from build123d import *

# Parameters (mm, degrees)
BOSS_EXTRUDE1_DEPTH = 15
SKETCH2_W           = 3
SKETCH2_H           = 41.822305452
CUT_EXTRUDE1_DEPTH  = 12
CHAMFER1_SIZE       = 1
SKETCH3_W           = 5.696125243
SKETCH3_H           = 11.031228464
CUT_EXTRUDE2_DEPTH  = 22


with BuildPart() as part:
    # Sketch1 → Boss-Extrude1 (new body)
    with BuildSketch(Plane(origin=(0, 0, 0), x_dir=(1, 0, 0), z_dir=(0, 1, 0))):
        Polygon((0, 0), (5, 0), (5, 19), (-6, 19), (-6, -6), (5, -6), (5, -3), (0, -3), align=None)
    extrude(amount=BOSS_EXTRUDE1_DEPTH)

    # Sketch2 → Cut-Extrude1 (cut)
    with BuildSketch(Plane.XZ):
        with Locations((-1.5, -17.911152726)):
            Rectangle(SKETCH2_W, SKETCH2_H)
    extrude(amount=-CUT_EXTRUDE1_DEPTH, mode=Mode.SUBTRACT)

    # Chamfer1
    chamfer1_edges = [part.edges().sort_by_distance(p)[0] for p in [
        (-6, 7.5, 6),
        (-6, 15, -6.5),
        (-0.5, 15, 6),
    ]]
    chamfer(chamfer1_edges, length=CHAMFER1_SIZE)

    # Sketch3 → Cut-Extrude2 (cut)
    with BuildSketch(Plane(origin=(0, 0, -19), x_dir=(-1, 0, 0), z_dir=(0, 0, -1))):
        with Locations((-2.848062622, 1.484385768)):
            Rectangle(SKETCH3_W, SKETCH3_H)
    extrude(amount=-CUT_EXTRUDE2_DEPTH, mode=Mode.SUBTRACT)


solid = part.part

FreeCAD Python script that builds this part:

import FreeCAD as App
import Part
import Sketcher
from FreeCAD import Vector


def edges_at(feature, points):
    """Names of the edges that pass closest to the given points."""
    edges = feature.Shape.Edges
    near = lambda p: min(range(len(edges)), key=lambda i: edges[i].distToShape(Part.Vertex(*p))[0])
    return sorted({f"Edge{near(p) + 1}" for p in points})

doc = App.newDocument("Part")
body = doc.addObject("PartDesign::Body", "Body")

# Sketch on XZ plane
sketch1 = doc.addObject("Sketcher::SketchObject", "Sketch")
body.addObject(sketch1)
sketch1.AttachmentSupport = (doc.XZ_Plane, [""])
sketch1.MapMode = "FlatFace"
sketch1.addGeometry([
    Part.LineSegment(Vector(0, 0, 0), Vector(5, 0, 0)),  # 0
    Part.LineSegment(Vector(5, 0, 0), Vector(5, -19, 0)),  # 1
    Part.LineSegment(Vector(5, -19, 0), Vector(-6, -19, 0)),  # 2
    Part.LineSegment(Vector(-6, -19, 0), Vector(-6, 6, 0)),  # 3
    Part.LineSegment(Vector(-6, 6, 0), Vector(5, 6, 0)),  # 4
    Part.LineSegment(Vector(5, 6, 0), Vector(5, 3, 0)),  # 5
    Part.LineSegment(Vector(5, 3, 0), Vector(0, 3, 0)),  # 6
    Part.LineSegment(Vector(0, 3, 0), Vector(0, 0, 0)),  # 7
], False)
sketch1.addConstraint([
    Sketcher.Constraint("Coincident", 0, 2, 1, 1),
    Sketcher.Constraint("Coincident", 1, 2, 2, 1),
    Sketcher.Constraint("Coincident", 2, 2, 3, 1),
    Sketcher.Constraint("Coincident", 3, 2, 4, 1),
    Sketcher.Constraint("Coincident", 4, 2, 5, 1),
    Sketcher.Constraint("Coincident", 5, 2, 6, 1),
    Sketcher.Constraint("Coincident", 6, 2, 7, 1),
    Sketcher.Constraint("Coincident", 7, 2, 0, 1),
    Sketcher.Constraint("Horizontal", 0),
    Sketcher.Constraint("Vertical", 1),
    Sketcher.Constraint("Horizontal", 2),
    Sketcher.Constraint("Vertical", 3),
    Sketcher.Constraint("Horizontal", 4),
    Sketcher.Constraint("Vertical", 5),
    Sketcher.Constraint("Horizontal", 6),
    Sketcher.Constraint("Vertical", 7),
    Sketcher.Constraint("Coincident", 7, 2, -1, 1),
    Sketcher.Constraint("Vertical", 1, 2, 4, 2),
    Sketcher.Constraint("Equal", 5, 7),
    Sketcher.Constraint("DistanceX", 0, 1, 0, 2, 5.0),
    Sketcher.Constraint("DistanceX", 2, 2, 2, 1, 11.0),
    Sketcher.Constraint("DistanceY", 1, 2, 1, 1, 19.0),
    Sketcher.Constraint("DistanceY", 3, 1, 3, 2, 25.0),
])
pad1 = doc.addObject("PartDesign::Pad", "Pad")
body.addObject(pad1)
pad1.Profile = sketch1
pad1.Length = 15
pad1.Reversed = True

# Sketch on XZ plane
sketch2 = doc.addObject("Sketcher::SketchObject", "Sketch001")
body.addObject(sketch2)
sketch2.AttachmentSupport = (doc.XZ_Plane, [""])
sketch2.MapMode = "FlatFace"
sketch2.addGeometry([
    Part.LineSegment(Vector(-3, 3, 0), Vector(-3, -38.822305, 0)),
    Part.LineSegment(Vector(-3, -38.822305, 0), Vector(0, -38.822305, 0)),
    Part.LineSegment(Vector(0, -38.822305, 0), Vector(0, 3, 0)),
    Part.LineSegment(Vector(0, 3, 0), Vector(-3, 3, 0)),
], False)
sketch2.addConstraint([
    Sketcher.Constraint("Coincident", 0, 2, 1, 1),
    Sketcher.Constraint("Coincident", 1, 2, 2, 1),
    Sketcher.Constraint("Coincident", 2, 2, 3, 1),
    Sketcher.Constraint("Coincident", 3, 2, 0, 1),
    Sketcher.Constraint("Vertical", 0),
    Sketcher.Constraint("Horizontal", 1),
    Sketcher.Constraint("Vertical", 2),
    Sketcher.Constraint("Horizontal", 3),
    Sketcher.Constraint("PointOnObject", 1, 2, -2),
    Sketcher.Constraint("DistanceX", 1, 1, 1, 2, 3.0),
    Sketcher.Constraint("DistanceY", -1, 1, 2, 2, 3.0),
    Sketcher.Constraint("DistanceY", 0, 2, 0, 1, 41.822305),
])
pocket1 = doc.addObject("PartDesign::Pocket", "Pocket")
body.addObject(pocket1)
pocket1.Profile = sketch2
pocket1.Length = 12
doc.recompute()

chamfer = doc.addObject("PartDesign::Chamfer", "Chamfer")
body.addObject(chamfer)
chamfer.Base = (pocket1, edges_at(pocket1, [(-6, 7.5, 6), (-6, 15, -6.5), (-0.5, 15, 6)]))
chamfer.Size = 1

# Sketch on XY plane
sketch3 = doc.addObject("Sketcher::SketchObject", "Sketch002")
body.addObject(sketch3)
sketch3.AttachmentSupport = (doc.XY_Plane, [""])
sketch3.MapMode = "FlatFace"
sketch3.AttachmentOffset = App.Placement(Vector(0, 0, -19), App.Rotation())
sketch3.addGeometry([
    Part.LineSegment(Vector(5.696125, 7, 0), Vector(5.696125, -4.031228, 0)),
    Part.LineSegment(Vector(5.696125, -4.031228, 0), Vector(0, -4.031228, 0)),
    Part.LineSegment(Vector(0, -4.031228, 0), Vector(0, 7, 0)),
    Part.LineSegment(Vector(0, 7, 0), Vector(5.696125, 7, 0)),
], False)
sketch3.addConstraint([
    Sketcher.Constraint("Coincident", 0, 2, 1, 1),
    Sketcher.Constraint("Coincident", 1, 2, 2, 1),
    Sketcher.Constraint("Coincident", 2, 2, 3, 1),
    Sketcher.Constraint("Coincident", 3, 2, 0, 1),
    Sketcher.Constraint("Vertical", 0),
    Sketcher.Constraint("Horizontal", 1),
    Sketcher.Constraint("Vertical", 2),
    Sketcher.Constraint("Horizontal", 3),
    Sketcher.Constraint("PointOnObject", 1, 2, -2),
    Sketcher.Constraint("DistanceY", -1, 1, 2, 2, 7.0),
    Sketcher.Constraint("DistanceY", 0, 2, 0, 1, 11.031228),
    Sketcher.Constraint("DistanceX", 1, 2, 1, 1, 5.696125),
])
pocket2 = doc.addObject("PartDesign::Pocket", "Pocket001")
body.addObject(pocket2)
pocket2.Profile = sketch3
pocket2.Length = 22
pocket2.Reversed = True

doc.recompute()
